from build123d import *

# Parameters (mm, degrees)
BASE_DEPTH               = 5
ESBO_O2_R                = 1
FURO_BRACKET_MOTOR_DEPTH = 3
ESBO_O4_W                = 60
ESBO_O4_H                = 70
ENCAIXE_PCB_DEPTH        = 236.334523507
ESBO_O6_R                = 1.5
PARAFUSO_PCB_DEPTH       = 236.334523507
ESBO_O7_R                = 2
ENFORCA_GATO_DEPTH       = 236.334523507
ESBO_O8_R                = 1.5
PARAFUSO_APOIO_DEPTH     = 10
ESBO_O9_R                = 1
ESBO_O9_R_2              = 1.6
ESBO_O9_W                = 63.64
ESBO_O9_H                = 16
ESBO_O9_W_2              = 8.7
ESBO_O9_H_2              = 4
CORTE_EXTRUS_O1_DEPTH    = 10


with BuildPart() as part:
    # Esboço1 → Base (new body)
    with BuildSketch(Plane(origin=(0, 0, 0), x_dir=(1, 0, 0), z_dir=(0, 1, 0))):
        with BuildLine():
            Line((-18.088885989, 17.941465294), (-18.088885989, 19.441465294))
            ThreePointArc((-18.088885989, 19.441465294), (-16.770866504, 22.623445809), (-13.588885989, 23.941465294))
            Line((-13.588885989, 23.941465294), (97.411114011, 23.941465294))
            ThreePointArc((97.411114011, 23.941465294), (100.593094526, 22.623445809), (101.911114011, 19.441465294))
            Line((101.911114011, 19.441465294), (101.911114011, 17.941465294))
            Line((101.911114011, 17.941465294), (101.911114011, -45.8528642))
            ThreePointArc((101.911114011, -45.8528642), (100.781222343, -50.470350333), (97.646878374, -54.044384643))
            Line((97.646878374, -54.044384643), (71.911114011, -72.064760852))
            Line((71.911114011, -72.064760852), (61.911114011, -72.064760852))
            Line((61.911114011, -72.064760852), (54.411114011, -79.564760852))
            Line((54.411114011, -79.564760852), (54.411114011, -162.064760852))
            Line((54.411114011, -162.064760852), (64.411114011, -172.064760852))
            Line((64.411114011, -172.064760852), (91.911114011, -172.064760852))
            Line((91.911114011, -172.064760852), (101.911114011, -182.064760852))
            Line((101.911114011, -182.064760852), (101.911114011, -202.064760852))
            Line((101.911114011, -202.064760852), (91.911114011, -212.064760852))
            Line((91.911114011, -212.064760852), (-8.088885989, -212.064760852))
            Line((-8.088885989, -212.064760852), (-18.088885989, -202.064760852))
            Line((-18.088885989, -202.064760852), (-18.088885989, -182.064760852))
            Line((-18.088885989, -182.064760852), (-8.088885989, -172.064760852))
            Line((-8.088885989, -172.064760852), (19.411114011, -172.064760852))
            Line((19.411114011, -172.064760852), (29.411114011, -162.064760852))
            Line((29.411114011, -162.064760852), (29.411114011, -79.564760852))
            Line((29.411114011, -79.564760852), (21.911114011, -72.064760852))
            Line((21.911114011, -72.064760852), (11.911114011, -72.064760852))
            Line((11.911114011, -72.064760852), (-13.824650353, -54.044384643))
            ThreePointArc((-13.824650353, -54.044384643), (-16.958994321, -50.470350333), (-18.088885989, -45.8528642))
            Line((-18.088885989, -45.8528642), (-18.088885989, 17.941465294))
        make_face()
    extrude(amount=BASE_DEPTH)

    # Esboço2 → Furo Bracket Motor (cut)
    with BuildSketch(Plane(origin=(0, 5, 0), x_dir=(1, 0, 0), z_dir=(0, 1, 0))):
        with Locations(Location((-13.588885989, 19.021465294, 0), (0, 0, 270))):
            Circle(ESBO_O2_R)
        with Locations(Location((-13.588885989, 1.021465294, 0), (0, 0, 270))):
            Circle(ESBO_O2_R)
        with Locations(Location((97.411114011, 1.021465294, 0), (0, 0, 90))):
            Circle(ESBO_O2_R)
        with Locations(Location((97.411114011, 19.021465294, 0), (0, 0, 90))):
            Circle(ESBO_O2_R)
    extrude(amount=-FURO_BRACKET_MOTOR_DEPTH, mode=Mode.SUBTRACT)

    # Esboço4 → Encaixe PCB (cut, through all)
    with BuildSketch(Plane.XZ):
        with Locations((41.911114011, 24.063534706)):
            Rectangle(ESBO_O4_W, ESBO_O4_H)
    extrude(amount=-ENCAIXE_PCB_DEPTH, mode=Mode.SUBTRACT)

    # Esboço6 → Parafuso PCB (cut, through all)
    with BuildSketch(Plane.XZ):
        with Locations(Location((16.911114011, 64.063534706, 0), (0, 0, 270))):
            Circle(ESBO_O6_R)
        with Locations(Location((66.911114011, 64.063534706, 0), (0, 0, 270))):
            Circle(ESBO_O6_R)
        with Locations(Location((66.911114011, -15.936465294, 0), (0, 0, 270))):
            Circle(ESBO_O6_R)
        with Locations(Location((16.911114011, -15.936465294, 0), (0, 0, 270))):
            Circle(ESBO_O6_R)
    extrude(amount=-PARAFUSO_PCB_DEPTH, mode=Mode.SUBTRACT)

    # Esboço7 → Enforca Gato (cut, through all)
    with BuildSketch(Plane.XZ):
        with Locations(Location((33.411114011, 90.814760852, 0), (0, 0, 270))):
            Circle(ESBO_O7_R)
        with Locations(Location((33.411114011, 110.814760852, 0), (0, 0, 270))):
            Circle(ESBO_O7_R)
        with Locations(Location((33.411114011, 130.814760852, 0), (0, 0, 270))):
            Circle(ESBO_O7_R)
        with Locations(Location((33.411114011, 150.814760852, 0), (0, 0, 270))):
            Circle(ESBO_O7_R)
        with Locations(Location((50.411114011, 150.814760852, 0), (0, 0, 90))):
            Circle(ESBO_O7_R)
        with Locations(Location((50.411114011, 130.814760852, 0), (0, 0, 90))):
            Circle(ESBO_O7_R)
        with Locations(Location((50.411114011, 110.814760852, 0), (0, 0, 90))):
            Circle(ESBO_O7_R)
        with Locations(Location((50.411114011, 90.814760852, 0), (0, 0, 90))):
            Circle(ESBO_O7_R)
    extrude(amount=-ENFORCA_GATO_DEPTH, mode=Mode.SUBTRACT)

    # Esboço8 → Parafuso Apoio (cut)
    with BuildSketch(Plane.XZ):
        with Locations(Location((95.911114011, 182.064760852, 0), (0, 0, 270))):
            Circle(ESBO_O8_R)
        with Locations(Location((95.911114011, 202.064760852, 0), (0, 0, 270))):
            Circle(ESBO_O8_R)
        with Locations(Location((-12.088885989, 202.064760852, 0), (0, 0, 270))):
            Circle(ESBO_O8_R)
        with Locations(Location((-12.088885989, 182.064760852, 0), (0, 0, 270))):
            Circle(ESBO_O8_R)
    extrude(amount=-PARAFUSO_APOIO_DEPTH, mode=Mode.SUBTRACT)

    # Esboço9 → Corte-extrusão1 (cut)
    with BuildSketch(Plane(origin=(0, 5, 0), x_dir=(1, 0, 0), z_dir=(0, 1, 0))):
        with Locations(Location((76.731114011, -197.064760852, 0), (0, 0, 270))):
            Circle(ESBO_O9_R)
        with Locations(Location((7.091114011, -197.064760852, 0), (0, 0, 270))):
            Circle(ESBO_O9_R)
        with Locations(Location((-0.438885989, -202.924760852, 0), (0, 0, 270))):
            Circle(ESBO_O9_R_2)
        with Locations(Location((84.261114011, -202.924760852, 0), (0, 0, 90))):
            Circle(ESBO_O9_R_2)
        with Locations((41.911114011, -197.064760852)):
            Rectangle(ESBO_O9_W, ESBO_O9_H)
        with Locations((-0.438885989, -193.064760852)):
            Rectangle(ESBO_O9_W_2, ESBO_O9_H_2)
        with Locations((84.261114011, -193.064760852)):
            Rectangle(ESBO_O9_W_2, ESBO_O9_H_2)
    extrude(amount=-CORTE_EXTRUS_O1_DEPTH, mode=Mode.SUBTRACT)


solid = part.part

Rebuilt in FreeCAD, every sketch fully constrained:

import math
import FreeCAD as App
import Part
import Sketcher

V = App.Vector
Q = App.Units.Quantity


def add_polygon(sketch, points):
    """Adds a closed chain of lines whose ends are joined by coincident constraints."""
    first, n = sketch.GeometryCount, len(points)
    for a, b in zip(points, points[1:] + points[:1]):
        sketch.addGeometry(Part.LineSegment(App.Vector(*a, 0), App.Vector(*b, 0)), False)
    for i in range(n):
        sketch.addConstraint(Sketcher.Constraint("Coincident", first + i, 2, first + (i + 1) % n, 1))

doc = App.newDocument("Part")
body = doc.addObject("PartDesign::Body", "Body")

sketch1 = body.newObject("Sketcher::SketchObject", "Sketch")
sketch1.AttachmentSupport = (doc.getObject("XZ_Plane"), [""])
sketch1.MapMode = "FlatFace"
sketch1.addGeometry([
    Part.ArcOfCircle(Part.Circle(V(-13.6, -19.4, 0), V(0, 0, 1), 4.5), math.radians(-180), math.radians(-90)),
    Part.LineSegment(V(-18.1, -19.4, 0), V(-18.1, 45.9, 0)),
    Part.ArcOfCircle(Part.Circle(V(-8.1, 45.9, 0), V(0, 0, 1), 10), math.radians(125), math.radians(180)),
    Part.LineSegment(V(-13.8, 54, 0), V(11.9, 72.1, 0)),
    Part.LineSegment(V(11.9, 72.1, 0), V(21.9, 72.1, 0)),
    Part.LineSegment(V(21.9, 72.1, 0), V(29.4, 79.6, 0)),
    Part.LineSegment(V(29.4, 79.6, 0), V(29.4, 162.1, 0)),
    Part.LineSegment(V(29.4, 162.1, 0), V(19.4, 172.1, 0)),
    Part.LineSegment(V(19.4, 172.1, 0), V(-8.1, 172.1, 0)),
    Part.LineSegment(V(-8.1, 172.1, 0), V(-18.1, 182.1, 0)),
    Part.LineSegment(V(-18.1, 182.1, 0), V(-18.1, 202.1, 0)),
    Part.LineSegment(V(-18.1, 202.1, 0), V(-8.1, 212.1, 0)),
    Part.LineSegment(V(-8.1, 212.1, 0), V(91.9, 212.1, 0)),
    Part.LineSegment(V(91.9, 212.1, 0), V(101.9, 202.1, 0)),
    Part.LineSegment(V(101.9, 202.1, 0), V(101.9, 182.1, 0)),
    Part.LineSegment(V(101.9, 182.1, 0), V(91.9, 172.1, 0)),
    Part.LineSegment(V(91.9, 172.1, 0), V(64.4, 172.1, 0)),
    Part.LineSegment(V(64.4, 172.1, 0), V(54.4, 162.1, 0)),
    Part.LineSegment(V(54.4, 162.1, 0), V(54.4, 79.6, 0)),
    Part.LineSegment(V(54.4, 79.6, 0), V(61.9, 72.1, 0)),
    Part.LineSegment(V(61.9, 72.1, 0), V(71.9, 72.1, 0)),
    Part.LineSegment(V(71.9, 72.1, 0), V(97.6, 54, 0)),
    Part.ArcOfCircle(Part.Circle(V(91.9, 45.9, 0), V(0, 0, 1), 10), math.radians(0), math.radians(55)),
    Part.LineSegment(V(101.9, 45.9, 0), V(101.9, -19.4, 0)),
    Part.ArcOfCircle(Part.Circle(V(97.4, -19.4, 0), V(0, 0, 1), 4.5), math.radians(-90), math.radians(0)),
    Part.LineSegment(V(97.4, -23.9, 0), V(-13.6, -23.9, 0)),
], False)
sketch1.addConstraint([
    Sketcher.Constraint("Tangent", 0, 1, 1, 1),
    Sketcher.Constraint("Tangent", 1, 2, 2, 2),
    Sketcher.Constraint("Tangent", 2, 1, 3, 1),
    Sketcher.Constraint("Coincident", 3, 2, 4, 1),
    Sketcher.Constraint("Coincident", 4, 2, 5, 1),
    Sketcher.Constraint("Coincident", 5, 2, 6, 1),
    Sketcher.Constraint("Coincident", 6, 2, 7, 1),
    Sketcher.Constraint("Coincident", 7, 2, 8, 1),
    Sketcher.Constraint("Coincident", 8, 2, 9, 1),
    Sketcher.Constraint("Coincident", 9, 2, 10, 1),
    Sketcher.Constraint("Coincident", 10, 2, 11, 1),
    Sketcher.Constraint("Coincident", 11, 2, 12, 1),
    Sketcher.Constraint("Coincident", 12, 2, 13, 1),
    Sketcher.Constraint("Coincident", 13, 2, 14, 1),
    Sketcher.Constraint("Coincident", 14, 2, 15, 1),
    Sketcher.Constraint("Coincident", 15, 2, 16, 1),
    Sketcher.Constraint("Coincident", 16, 2, 17, 1),
    Sketcher.Constraint("Coincident", 17, 2, 18, 1),
    Sketcher.Constraint("Coincident", 18, 2, 19, 1),
    Sketcher.Constraint("Coincident", 19, 2, 20, 1),
    Sketcher.Constraint("Coincident", 20, 2, 21, 1),
    Sketcher.Constraint("Tangent", 21, 2, 22, 2),
    Sketcher.Constraint("Tangent", 22, 1, 23, 1),
    Sketcher.Constraint("Tangent", 23, 2, 24, 2),
    Sketcher.Constraint("Tangent", 24, 1, 25, 1),
    Sketcher.Constraint("Tangent", 25, 2, 0, 2),
    Sketcher.Constraint("Vertical", 1),
    Sketcher.Constraint("Horizontal", 4),
    Sketcher.Constraint("Vertical", 6),
    Sketcher.Constraint("Horizontal", 8),
    Sketcher.Constraint("Vertical", 10),
    Sketcher.Constraint("Horizontal", 12),
    Sketcher.Constraint("Vertical", 14),
    Sketcher.Constraint("Horizontal", 16),
    Sketcher.Constraint("Vertical", 18),
    Sketcher.Constraint("Horizontal", 20),
    Sketcher.Constraint("Vertical", 23),
    Sketcher.Constraint("Horizontal", 25),
    Sketcher.Constraint("Equal", 2, 22),
    Sketcher.Constraint("Equal", 0, 24),
    Sketcher.Constraint("Perpendicular", 5, 7),
    Sketcher.Constraint("Parallel", 7, 9),
    Sketcher.Constraint("Perpendicular", 9, 11),
    Sketcher.Constraint("Perpendicular", 11, 13),
    Sketcher.Constraint("Perpendicular", 13, 15),
    Sketcher.Constraint("Parallel", 15, 17),
    Sketcher.Constraint("Perpendicular", 17, 19),
    Sketcher.Constraint("Horizontal", 2, 3, 22, 3),
    Sketcher.Constraint("Horizontal", 10, 2, 13, 2),
    Sketcher.Constraint("Horizontal", 9, 2, 14, 2),
    Sketcher.Constraint("Horizontal", 8, 2, 15, 2),
    Sketcher.Constraint("Horizontal", 6, 2, 17, 2),
    Sketcher.Constraint("Horizontal", 5, 2, 18, 2),
    Sketcher.Constraint("Horizontal", 4, 2, 19, 2),
    Sketcher.Constraint("Horizontal", 2, 1, 21, 2),
    Sketcher.Constraint("Vertical", 2, 3, 8, 2),
    Sketcher.Constraint("Vertical", 1, 2, 9, 2),
    Sketcher.Constraint("Vertical", 8, 2, 11, 2),
    Sketcher.Constraint("Vertical", 22, 3, 12, 2),
    Sketcher.Constraint("Vertical", 12, 2, 15, 2),
    Sketcher.Constraint("Equal", 8, 16),
    Sketcher.Constraint("Equal", 7, 9),
    Sketcher.Constraint("Radius", 2, 10.0),
    Sketcher.Constraint("Radius", 0, 4.5),
    Sketcher.Constraint("DistanceX", 4, 1, 4, 2, 10.0),
    Sketcher.Constraint("DistanceX", 12, 1, 12, 2, 100.0),
    Sketcher.Constraint("DistanceY", 10, 1, 10, 2, 20.0),
    Sketcher.Constraint("Angle", 3, Q("35 deg")),
    Sketcher.Constraint("DistanceX", 8, 2, 8, 1, 27.5),
    Sketcher.Constraint("DistanceY", 6, 1, 6, 2, 82.5),
    Sketcher.Constraint("DistanceX", 2, 3, 3, 2, 20.0),
    Sketcher.Constraint("DistanceY", 1, 1, 1, 2, 65.294329),
    Sketcher.Constraint("DistanceX", 2, 1, -1, 1, 13.82465),
    Sketcher.Constraint("DistanceY", -1, 1, 3, 2, 72.064761),
])
pad1 = body.newObject("PartDesign::Pad", "Pad")
pad1.Profile = sketch1
pad1.Length = 5
pad1.Reversed = True

sketch2 = body.newObject("Sketcher::SketchObject", "Sketch001")
sketch2.AttachmentSupport = (doc.getObject("XZ_Plane"), [""])
sketch2.MapMode = "FlatFace"
sketch2.AttachmentOffset = App.Placement(V(0, 0, -5), App.Rotation())
sketch2.addGeometry([
    Part.Circle(V(-13.6, -19, 0), V(0, 0, 1), 1),
    Part.Circle(V(-13.6, -1, 0), V(0, 0, 1), 1),
    Part.Circle(V(97.4, -1, 0), V(0, 0, 1), 1),
    Part.Circle(V(97.4, -19, 0), V(0, 0, 1), 1),
], False)
sketch2.addConstraint([
    Sketcher.Constraint("Equal", 0, 1),
    Sketcher.Constraint("Equal", 1, 2),
    Sketcher.Constraint("Equal", 2, 3),
    Sketcher.Constraint("Horizontal", 1, 3, 2, 3),
    Sketcher.Constraint("Horizontal", 0, 3, 3, 3),
    Sketcher.Constraint("Vertical", 0, 3, 1, 3),
    Sketcher.Constraint("Vertical", 2, 3, 3, 3),
    Sketcher.Constraint("Diameter", 0, 2.0),
    Sketcher.Constraint("DistanceY", 0, 3, 1, 3, 18.0),
    Sketcher.Constraint("DistanceX", 1, 3, 2, 3, 111.0),
    Sketcher.Constraint("DistanceX", 0, 3, -1, 1, 13.588886),
    Sketcher.Constraint("DistanceY", 0, 3, -1, 1, 19.021465),
])
pocket1 = body.newObject("PartDesign::Pocket", "Pocket")
pocket1.Profile = sketch2
pocket1.Length = 3
pocket1.Reversed = True

sketch3 = body.newObject("Sketcher::SketchObject", "Sketch002")
sketch3.AttachmentSupport = (doc.getObject("XZ_Plane"), [""])
sketch3.MapMode = "FlatFace"
add_polygon(sketch3, [(12, 59), (12, -11), (72, -11), (72, 59)])
sketch3.addConstraint([
    Sketcher.Constraint("Vertical", 0),
    Sketcher.Constraint("Horizontal", 1),
    Sketcher.Constraint("Vertical", 2),
    Sketcher.Constraint("Horizontal", 3),
    Sketcher.Constraint("DistanceX", 1, 1, 1, 2, 60.0),
    Sketcher.Constraint("DistanceY", 0, 2, 0, 1, 70.0),
    Sketcher.Constraint("DistanceX", -1, 1, 0, 2, 11.911114),
    Sketcher.Constraint("DistanceY", 0, 2, -1, 1, 10.936465),
])
pocket2 = body.newObject("PartDesign::Pocket", "Pocket001")
pocket2.Profile = sketch3
pocket2.Type = "ThroughAll"

sketch4 = body.newObject("Sketcher::SketchObject", "Sketch003")
sketch4.AttachmentSupport = (doc.getObject("XZ_Plane"), [""])
sketch4.MapMode = "FlatFace"
sketch4.addGeometry([
    Part.Circle(V(16.9, 64.1, 0), V(0, 0, 1), 1.5),
    Part.Circle(V(66.9, 64.1, 0), V(0, 0, 1), 1.5),
    Part.Circle(V(66.9, -15.9, 0), V(0, 0, 1), 1.5),
    Part.Circle(V(16.9, -15.9, 0), V(0, 0, 1), 1.5),
], False)
sketch4.addConstraint([
    Sketcher.Constraint("Equal", 0, 1),
    Sketcher.Constraint("Equal", 1, 2),
    Sketcher.Constraint("Equal", 2, 3),
    Sketcher.Constraint("Horizontal", 0, 3, 1, 3),
    Sketcher.Constraint("Horizontal", 2, 3, 3, 3),
    Sketcher.Constraint("Vertical", 1, 3, 2, 3),
    Sketcher.Constraint("Vertical", 0, 3, 3, 3),
    Sketcher.Constraint("Diameter", 0, 3.0),
    Sketcher.Constraint("DistanceX", 0, 3, 1, 3, 50.0),
    Sketcher.Constraint("DistanceY", 2, 3, 1, 3, 80.0),
    Sketcher.Constraint("DistanceX", -1, 1, 0, 3, 16.911114),
    Sketcher.Constraint("DistanceY", -1, 1, 0, 3, 64.063535),
])
pocket3 = body.newObject("PartDesign::Pocket", "Pocket002")
pocket3.Profile = sketch4
pocket3.Type = "ThroughAll"

sketch5 = body.newObject("Sketcher::SketchObject", "Sketch004")
sketch5.AttachmentSupport = (doc.getObject("XZ_Plane"), [""])
sketch5.MapMode = "FlatFace"
sketch5.addGeometry([
    Part.Circle(V(33.4, 90.8, 0), V(0, 0, 1), 2),
    Part.Circle(V(33.4, 110.8, 0), V(0, 0, 1), 2),
    Part.Circle(V(33.4, 130.8, 0), V(0, 0, 1), 2),
    Part.Circle(V(33.4, 150.8, 0), V(0, 0, 1), 2),
    Part.Circle(V(50.4, 150.8, 0), V(0, 0, 1), 2),
    Part.Circle(V(50.4, 130.8, 0), V(0, 0, 1), 2),
    Part.Circle(V(50.4, 110.8, 0), V(0, 0, 1), 2),
    Part.Circle(V(50.4, 90.8, 0), V(0, 0, 1), 2),
], False)
sketch5.addConstraint([
    Sketcher.Constraint("Equal", 0, 1),
    Sketcher.Constraint("Equal", 1, 2),
    Sketcher.Constraint("Equal", 2, 3),
    Sketcher.Constraint("Equal", 3, 4),
    Sketcher.Constraint("Equal", 4, 5),
    Sketcher.Constraint("Equal", 5, 6),
    Sketcher.Constraint("Equal", 6, 7),
    Sketcher.Constraint("Horizontal", 3, 3, 4, 3),
    Sketcher.Constraint("Horizontal", 2, 3, 5, 3),
    Sketcher.Constraint("Horizontal", 1, 3, 6, 3),
    Sketcher.Constraint("Horizontal", 0, 3, 7, 3),
    Sketcher.Constraint("Vertical", 0, 3, 1, 3),
    Sketcher.Constraint("Vertical", 1, 3, 2, 3),
    Sketcher.Constraint("Vertical", 2, 3, 3, 3),
    Sketcher.Constraint("Vertical", 4, 3, 5, 3),
    Sketcher.Constraint("Vertical", 5, 3, 6, 3),
    Sketcher.Constraint("Vertical", 6, 3, 7, 3),
    Sketcher.Constraint("Diameter", 0, 4.0),
    Sketcher.Constraint("DistanceY", 0, 3, 1, 3, 20.0),
    Sketcher.Constraint("DistanceY", 1, 3, 2, 3, 20.0),
    Sketcher.Constraint("DistanceY", 2, 3, 3, 3, 20.0),
    Sketcher.Constraint("DistanceX", 3, 3, 4, 3, 17.0),
    Sketcher.Constraint("DistanceY", -1, 1, 0, 3, 90.814761),
    Sketcher.Constraint("DistanceX", -1, 1, 0, 3, 33.411114),
])
pocket4 = body.newObject("PartDesign::Pocket", "Pocket003")
pocket4.Profile = sketch5
pocket4.Type = "ThroughAll"

sketch6 = body.newObject("Sketcher::SketchObject", "Sketch005")
sketch6.AttachmentSupport = (doc.getObject("XZ_Plane"), [""])
sketch6.MapMode = "FlatFace"
sketch6.addGeometry([
    Part.Circle(V(95.9, 182.1, 0), V(0, 0, 1), 1.5),
    Part.Circle(V(95.9, 202.1, 0), V(0, 0, 1), 1.5),
    Part.Circle(V(-12.1, 202.1, 0), V(0, 0, 1), 1.5),
    Part.Circle(V(-12.1, 182.1, 0), V(0, 0, 1), 1.5),
], False)
sketch6.addConstraint([
    Sketcher.Constraint("Equal", 0, 1),
    Sketcher.Constraint("Equal", 1, 2),
    Sketcher.Constraint("Equal", 2, 3),
    Sketcher.Constraint("Horizontal", 1, 3, 2, 3),
    Sketcher.Constraint("Horizontal", 0, 3, 3, 3),
    Sketcher.Constraint("Vertical", 0, 3, 1, 3),
    Sketcher.Constraint("Vertical", 2, 3, 3, 3),
    Sketcher.Constraint("Diameter", 0, 3.0),
    Sketcher.Constraint("DistanceY", 0, 3, 1, 3, 20.0),
    Sketcher.Constraint("DistanceX", 2, 3, 1, 3, 108.0),
    Sketcher.Constraint("DistanceY", -1, 1, 0, 3, 182.064761),
    Sketcher.Constraint("DistanceX", -1, 1, 0, 3, 95.911114),
])
pocket5 = body.newObject("PartDesign::Pocket", "Pocket004")
pocket5.Profile = sketch6
pocket5.Length = 10

sketch7 = body.newObject("Sketcher::SketchObject", "Sketch006")
sketch7.AttachmentSupport = (doc.getObject("XZ_Plane"), [""])
sketch7.MapMode = "FlatFace"
sketch7.AttachmentOffset = App.Placement(V(0, 0, -5), App.Rotation())
sketch7.addGeometry(Part.Circle(V(76.7, 197.1, 0), V(0, 0, 1), 1), False)
sketch7.addGeometry(Part.Circle(V(7.1, 197.1, 0), V(0, 0, 1), 1), False)
sketch7.addGeometry(Part.Circle(V(-0.4, 202.9, 0), V(0, 0, 1), 1.6), False)
sketch7.addGeometry(Part.Circle(V(84.3, 202.9, 0), V(0, 0, 1), 1.6), False)
add_polygon(sketch7, [(10.1, 189.1), (10.1, 205.1), (73.7, 205.1), (73.7, 189.1)])
add_polygon(sketch7, [(-4.8, 191.1), (-4.8, 195.1), (3.9, 195.1), (3.9, 191.1)])
add_polygon(sketch7, [(79.9, 191.1), (79.9, 195.1), (88.6, 195.1), (88.6, 191.1)])
sketch7.addConstraint([
    Sketcher.Constraint("Vertical", 4),
    Sketcher.Constraint("Horizontal", 5),
    Sketcher.Constraint("Vertical", 6),
    Sketcher.Constraint("Horizontal", 7),
    Sketcher.Constraint("Vertical", 8),
    Sketcher.Constraint("Horizontal", 9),
    Sketcher.Constraint("Vertical", 10),
    Sketcher.Constraint("Horizontal", 11),
    Sketcher.Constraint("Vertical", 12),
    Sketcher.Constraint("Horizontal", 13),
    Sketcher.Constraint("Vertical", 14),
    Sketcher.Constraint("Horizontal", 15),
    Sketcher.Constraint("Equal", 0, 1),
    Sketcher.Constraint("Equal", 2, 3),
    Sketcher.Constraint("Horizontal", 0, 3, 1, 3),
    Sketcher.Constraint("Horizontal", 2, 3, 3, 3),
    Sketcher.Constraint("Horizontal", 9, 2, 12, 2),
    Sketcher.Constraint("Horizontal", 11, 2, 14, 2),
    Sketcher.Constraint("Equal", 11, 13),
    Sketcher.Constraint("Diameter", 0, 2.0),
    Sketcher.Constraint("Diameter", 2, 3.2),
    Sketcher.Constraint("DistanceY", 4, 1, 4, 2, 16.0),
    Sketcher.Constraint("DistanceY", 8, 1, 8, 2, 4.0),
    Sketcher.Constraint("DistanceX", 9, 1, 9, 2, 8.7),
    Sketcher.Constraint("DistanceX", 1, 3, 4, 2, 3.0),
    Sketcher.Constraint("DistanceY", 1, 3, 4, 2, 8.0),
    Sketcher.Constraint("DistanceX", 5, 2, 0, 3, 3.0),
    Sketcher.Constraint("DistanceY", 8, 2, 1, 3, 2.0),
    Sketcher.Constraint("DistanceX", 5, 1, 5, 2, 63.64),
    Sketcher.Constraint("DistanceX", 2, 3, 3, 3, 84.7),
    Sketcher.Constraint("DistanceX", 2, 3, 1, 3, 7.53),
    Sketcher.Constraint("DistanceY", 1, 3, 2, 3, 5.86),
    Sketcher.Constraint("DistanceX", 8, 2, 2, 3, 4.35),
    Sketcher.Constraint("DistanceX", 0, 3, 12, 2, 3.18),
    Sketcher.Constraint("DistanceY", -1, 1, 0, 3, 197.064761),
    Sketcher.Constraint("DistanceX", -1, 1, 0, 3, 76.731114),
])
pocket6 = body.newObject("PartDesign::Pocket", "Pocket005")
pocket6.Profile = sketch7
pocket6.Length = 10
pocket6.Reversed = True

doc.recompute()
